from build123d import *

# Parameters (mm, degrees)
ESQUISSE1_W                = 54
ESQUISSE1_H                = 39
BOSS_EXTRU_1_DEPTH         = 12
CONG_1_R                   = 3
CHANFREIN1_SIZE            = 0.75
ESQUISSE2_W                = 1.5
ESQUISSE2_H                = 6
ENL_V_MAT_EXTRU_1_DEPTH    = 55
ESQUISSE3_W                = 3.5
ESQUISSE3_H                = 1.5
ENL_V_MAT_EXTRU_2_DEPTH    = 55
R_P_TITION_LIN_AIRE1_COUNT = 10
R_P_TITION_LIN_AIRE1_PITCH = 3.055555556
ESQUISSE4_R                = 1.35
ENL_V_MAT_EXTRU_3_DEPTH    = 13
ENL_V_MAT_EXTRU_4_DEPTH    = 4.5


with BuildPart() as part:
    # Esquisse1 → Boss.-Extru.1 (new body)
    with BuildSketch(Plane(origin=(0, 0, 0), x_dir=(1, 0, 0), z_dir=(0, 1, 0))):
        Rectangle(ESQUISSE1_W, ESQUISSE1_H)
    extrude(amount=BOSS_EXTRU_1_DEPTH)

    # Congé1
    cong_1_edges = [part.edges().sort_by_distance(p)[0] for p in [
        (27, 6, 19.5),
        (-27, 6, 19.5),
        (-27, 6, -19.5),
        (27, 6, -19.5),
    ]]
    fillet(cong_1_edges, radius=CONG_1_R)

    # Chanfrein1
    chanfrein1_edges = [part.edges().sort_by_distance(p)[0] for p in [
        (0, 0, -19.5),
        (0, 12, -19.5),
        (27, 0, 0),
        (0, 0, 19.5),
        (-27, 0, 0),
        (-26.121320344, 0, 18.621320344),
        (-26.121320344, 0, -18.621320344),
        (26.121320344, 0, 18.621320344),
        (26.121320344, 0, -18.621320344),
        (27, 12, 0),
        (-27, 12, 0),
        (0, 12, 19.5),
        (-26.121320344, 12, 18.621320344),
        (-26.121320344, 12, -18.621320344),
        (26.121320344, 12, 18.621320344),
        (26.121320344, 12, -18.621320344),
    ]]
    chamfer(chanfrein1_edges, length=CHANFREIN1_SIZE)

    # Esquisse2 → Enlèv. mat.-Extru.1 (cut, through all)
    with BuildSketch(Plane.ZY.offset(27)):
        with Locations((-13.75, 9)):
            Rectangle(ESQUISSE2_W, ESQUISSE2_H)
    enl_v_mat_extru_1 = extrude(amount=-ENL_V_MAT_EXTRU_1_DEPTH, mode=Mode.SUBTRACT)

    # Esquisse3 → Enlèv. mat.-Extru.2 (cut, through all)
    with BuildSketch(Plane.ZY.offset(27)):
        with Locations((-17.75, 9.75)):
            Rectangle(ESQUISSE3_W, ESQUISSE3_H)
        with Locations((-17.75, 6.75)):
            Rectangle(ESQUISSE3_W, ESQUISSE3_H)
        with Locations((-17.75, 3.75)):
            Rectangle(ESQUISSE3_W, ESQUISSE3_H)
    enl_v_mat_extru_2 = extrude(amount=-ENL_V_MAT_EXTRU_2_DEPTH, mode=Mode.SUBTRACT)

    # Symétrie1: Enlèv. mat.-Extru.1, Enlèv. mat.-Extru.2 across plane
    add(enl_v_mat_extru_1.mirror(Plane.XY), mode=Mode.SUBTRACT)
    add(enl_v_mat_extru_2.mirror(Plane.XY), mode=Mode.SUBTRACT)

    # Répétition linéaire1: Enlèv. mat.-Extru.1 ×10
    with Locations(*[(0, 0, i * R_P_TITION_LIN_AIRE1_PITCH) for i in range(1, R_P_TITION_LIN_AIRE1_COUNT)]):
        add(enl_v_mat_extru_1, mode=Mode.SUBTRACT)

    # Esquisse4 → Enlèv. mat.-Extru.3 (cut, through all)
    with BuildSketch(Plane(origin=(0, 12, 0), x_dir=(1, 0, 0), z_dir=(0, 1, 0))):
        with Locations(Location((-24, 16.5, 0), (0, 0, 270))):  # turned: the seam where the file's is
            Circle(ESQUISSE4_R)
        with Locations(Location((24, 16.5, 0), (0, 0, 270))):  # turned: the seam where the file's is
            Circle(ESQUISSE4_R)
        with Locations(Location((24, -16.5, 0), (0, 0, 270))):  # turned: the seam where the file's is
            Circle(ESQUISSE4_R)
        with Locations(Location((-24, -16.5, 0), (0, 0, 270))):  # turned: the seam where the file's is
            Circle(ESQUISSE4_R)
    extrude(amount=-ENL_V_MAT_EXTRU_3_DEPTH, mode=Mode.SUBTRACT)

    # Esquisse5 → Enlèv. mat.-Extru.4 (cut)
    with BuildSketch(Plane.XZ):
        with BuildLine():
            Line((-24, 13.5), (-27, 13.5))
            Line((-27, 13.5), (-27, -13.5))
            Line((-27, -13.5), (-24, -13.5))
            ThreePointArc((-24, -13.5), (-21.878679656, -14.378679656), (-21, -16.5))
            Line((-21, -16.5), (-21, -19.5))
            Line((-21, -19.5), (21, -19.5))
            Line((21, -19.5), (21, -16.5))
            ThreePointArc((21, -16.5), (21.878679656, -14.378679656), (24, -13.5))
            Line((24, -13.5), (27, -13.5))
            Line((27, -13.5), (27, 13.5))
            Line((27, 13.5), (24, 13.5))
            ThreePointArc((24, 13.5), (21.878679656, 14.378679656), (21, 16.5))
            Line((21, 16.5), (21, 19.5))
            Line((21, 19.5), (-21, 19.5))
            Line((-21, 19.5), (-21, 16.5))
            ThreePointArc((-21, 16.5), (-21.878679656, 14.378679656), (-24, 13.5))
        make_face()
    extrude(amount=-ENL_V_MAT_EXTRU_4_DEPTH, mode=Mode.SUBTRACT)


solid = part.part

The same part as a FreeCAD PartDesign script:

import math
import FreeCAD as App
import Part
import Sketcher
from FreeCAD import Vector
Q = App.Units.Quantity


def edges_at(feature, points):
    """Names of the edges that pass closest to the given points."""
    edges = feature.Shape.Edges
    near = lambda p: min(range(len(edges)), key=lambda i: edges[i].distToShape(Part.Vertex(*p))[0])
    return sorted({f"Edge{near(p) + 1}" for p in points})


def add_polygon(sketch, points):
    """Adds a closed chain of lines whose ends are joined by coincident constraints."""
    first, n = sketch.GeometryCount, len(points)
    for a, b in zip(points, points[1:] + points[:1]):
        sketch.addGeometry(Part.LineSegment(App.Vector(*a, 0), App.Vector(*b, 0)), False)
    for i in range(n):
        sketch.addConstraint(Sketcher.Constraint("Coincident", first + i, 2, first + (i + 1) % n, 1))

doc = App.newDocument("Part")
params = doc.addObject("Spreadsheet::Sheet", "Params")
for row, (alias, value) in enumerate([
    ("sketch1_width", "54 mm"),
    ("sketch1_height", "39 mm"),
    ("pad1_length", "12 mm"),
    ("fillet_radius", "3 mm"),
    ("chamfer_size", "0.75 mm"),
    ("sketch2_width", "6 mm"),
    ("sketch2_height", "1.5 mm"),
    ("sketch3_width", "1.5 mm"),
    ("sketch3_height", "3.5 mm"),
    ("linearpattern_pitch", "3.055556 mm"),
    ("sketch4_diameter", "2.7 mm"),
    ("sketch5_radius", "3 mm"),
    ("sketch5_width", "3 mm"),
    ("sketch5_width2", "42 mm"),
    ("sketch5_height", "27 mm"),
    ("pocket4_length", "4.5 mm"),
], start=1):
    params.set(f"A{row}", alias)
    params.set(f"B{row}", "=" + value)
    params.setAlias(f"B{row}", alias)

body = doc.addObject("PartDesign::Body", "Body")

sketch1 = body.newObject("Sketcher::SketchObject", "Sketch")
sketch1.AttachmentSupport = (doc.getObject("XZ_Plane"), [""])
sketch1.MapMode = "FlatFace"
add_polygon(sketch1, [(-27, -20), (-27, 20), (27, 20), (27, -20)])
sketch1.addConstraint(Sketcher.Constraint("Vertical", 0))
sketch1.addConstraint(Sketcher.Constraint("Horizontal", 1))
sketch1.addConstraint(Sketcher.Constraint("Vertical", 2))
sketch1.addConstraint(Sketcher.Constraint("Horizontal", 3))
sketch1.addConstraint(Sketcher.Constraint("Symmetric", 0, 2, 2, 2, -1, 1))
sketch1.addConstraint(Sketcher.Constraint("DistanceX", 1, 1, 1, 2, Q("54 mm")))
sketch1.addConstraint(Sketcher.Constraint("DistanceY", 0, 1, 0, 2, Q("39 mm")))
sketch1.setExpression("Constraints[9]", "Params.sketch1_width")
sketch1.setExpression("Constraints[10]", "Params.sketch1_height")
pad1 = body.newObject("PartDesign::Pad", "Pad")
pad1.Profile = sketch1
pad1.setExpression("Length", "Params.pad1_length")
pad1.Reversed = True
doc.recompute()

fillet = body.newObject("PartDesign::Fillet", "Fillet")
fillet.Base = (pad1, edges_at(pad1, [
    (27, 6, 19.5),
    (-27, 6, 19.5),
    (-27, 6, -19.5),
    (27, 6, -19.5),
]))
fillet.setExpression("Radius", "Params.fillet_radius")
doc.recompute()

chamfer = body.newObject("PartDesign::Chamfer", "Chamfer")
chamfer.Base = (fillet, edges_at(fillet, [
    (0, 0, -19.5),
    (0, 12, -19.5),
    (27, 0, 0),
    (0, 0, 19.5),
    (-27, 0, 0),
    (-26.121, 0, 18.621),
    (-26.121, 0, -18.621),
    (26.121, 0, 18.621),
    (26.121, 0, -18.621),
    (27, 12, 0),
    (-27, 12, 0),
    (0, 12, 19.5),
    (-26.121, 12, 18.621),
    (-26.121, 12, -18.621),
    (26.121, 12, 18.621),
    (26.121, 12, -18.621),
]))
chamfer.setExpression("Size", "Params.chamfer_size")

sketch2 = body.newObject("Sketcher::SketchObject", "Sketch001")
sketch2.AttachmentSupport = (doc.getObject("YZ_Plane"), [""])
sketch2.MapMode = "FlatFace"
sketch2.AttachmentOffset = App.Placement(Vector(0, 0, -27), App.Rotation())
add_polygon(sketch2, [(12, -14.5), (6, -14.5), (6, -13), (12, -13)])
sketch2.addConstraint(Sketcher.Constraint("Horizontal", 0))
sketch2.addConstraint(Sketcher.Constraint("Vertical", 1))
sketch2.addConstraint(Sketcher.Constraint("Horizontal", 2))
sketch2.addConstraint(Sketcher.Constraint("Vertical", 3))
sketch2.addConstraint(Sketcher.Constraint("DistanceX", 0, 2, 0, 1, Q("6 mm")))
sketch2.addConstraint(Sketcher.Constraint("DistanceY", 1, 1, 1, 2, Q("1.5 mm")))
sketch2.addConstraint(Sketcher.Constraint("DistanceX", -1, 1, 0, 2, Q("6 mm")))
sketch2.addConstraint(Sketcher.Constraint("DistanceY", 1, 2, -1, 1, Q("13 mm")))
sketch2.setExpression("Constraints[8]", "Params.sketch2_width")
sketch2.setExpression("Constraints[9]", "Params.sketch2_height")
pocket1 = body.newObject("PartDesign::Pocket", "Pocket")
pocket1.Profile = sketch2
pocket1.Type = "ThroughAll"
pocket1.Reversed = True

sketch3 = body.newObject("Sketcher::SketchObject", "Sketch002")
sketch3.AttachmentSupport = (doc.getObject("YZ_Plane"), [""])
sketch3.MapMode = "FlatFace"
sketch3.AttachmentOffset = App.Placement(Vector(0, 0, -27), App.Rotation())
add_polygon(sketch3, [(10.5, -19.5), (9, -19.5), (9, -16), (10.5, -16)])
add_polygon(sketch3, [(7.5, -19.5), (6, -19.5), (6, -16), (7.5, -16)])
add_polygon(sketch3, [(4.5, -19.5), (3, -19.5), (3, -16), (4.5, -16)])
sketch3.addConstraint(Sketcher.Constraint("Horizontal", 0))
sketch3.addConstraint(Sketcher.Constraint("Vertical", 1))
sketch3.addConstraint(Sketcher.Constraint("Horizontal", 2))
sketch3.addConstraint(Sketcher.Constraint("Vertical", 3))
sketch3.addConstraint(Sketcher.Constraint("Horizontal", 4))
sketch3.addConstraint(Sketcher.Constraint("Vertical", 5))
sketch3.addConstraint(Sketcher.Constraint("Horizontal", 6))
sketch3.addConstraint(Sketcher.Constraint("Vertical", 7))
sketch3.addConstraint(Sketcher.Constraint("Horizontal", 8))
sketch3.addConstraint(Sketcher.Constraint("Vertical", 9))
sketch3.addConstraint(Sketcher.Constraint("Horizontal", 10))
sketch3.addConstraint(Sketcher.Constraint("Vertical", 11))
sketch3.addConstraint(Sketcher.Constraint("Horizontal", 3, 2, 4, 2))
sketch3.addConstraint(Sketcher.Constraint("Horizontal", 2, 2, 5, 2))
sketch3.addConstraint(Sketcher.Constraint("Horizontal", 7, 2, 8, 2))
sketch3.addConstraint(Sketcher.Constraint("Horizontal", 6, 2, 9, 2))
sketch3.addConstraint(Sketcher.Constraint("Equal", 2, 4))
sketch3.addConstraint(Sketcher.Constraint("Equal", 6, 8))
sketch3.addConstraint(Sketcher.Constraint("DistanceX", 0, 2, 0, 1, Q("1.5 mm")))
sketch3.addConstraint(Sketcher.Constraint("DistanceY", 1, 1, 1, 2, Q("3.5 mm")))
sketch3.addConstraint(Sketcher.Constraint("DistanceX", -1, 1, 0, 2, Q("9 mm")))
sketch3.addConstraint(Sketcher.Constraint("DistanceY", 1, 2, -1, 1, Q("16 mm")))
sketch3.addConstraint(Sketcher.Constraint("DistanceX", -1, 1, 4, 2, Q("6 mm")))
sketch3.addConstraint(Sketcher.Constraint("DistanceX", -1, 1, 8, 2, Q("3 mm")))
sketch3.setExpression("Constraints[30]", "Params.sketch3_width")
sketch3.setExpression("Constraints[31]", "Params.sketch3_height")
pocket2 = body.newObject("PartDesign::Pocket", "Pocket001")
pocket2.Profile = sketch3
pocket2.Type = "ThroughAll"
pocket2.Reversed = True
doc.recompute()

mirrored = body.newObject("PartDesign::Mirrored", "Mirrored")
mirrored.Originals = [pocket1, pocket2]
mirrored.MirrorPlane = (doc.getObject("XY_Plane"), [""])
body.Tip = mirrored
doc.recompute()

linearpattern = body.newObject("PartDesign::LinearPattern", "LinearPattern")
linearpattern.Originals = [pocket1]
linearpattern.Direction = (doc.getObject("Z_Axis"), [""])
linearpattern.Mode = "offset"
linearpattern.setExpression("Offset", "Params.linearpattern_pitch")
linearpattern.Occurrences = 10
body.Tip = linearpattern

sketch4 = body.newObject("Sketcher::SketchObject", "Sketch003")
sketch4.AttachmentSupport = (doc.getObject("XZ_Plane"), [""])
sketch4.MapMode = "FlatFace"
sketch4.AttachmentOffset = App.Placement(Vector(0, 0, -12), App.Rotation())
sketch4.addGeometry(Part.Circle(Vector(-24, -16.5, 0), Vector(0, 0, 1), 1.4), False)
sketch4.addGeometry(Part.Circle(Vector(24, -16.5, 0), Vector(0, 0, 1), 1.4), False)
sketch4.addGeometry(Part.Circle(Vector(24, 16.5, 0), Vector(0, 0, 1), 1.4), False)
sketch4.addGeometry(Part.Circle(Vector(-24, 16.5, 0), Vector(0, 0, 1), 1.4), False)
sketch4.addConstraint(Sketcher.Constraint("Equal", 0, 1))
sketch4.addConstraint(Sketcher.Constraint("Equal", 1, 2))
sketch4.addConstraint(Sketcher.Constraint("Equal", 2, 3))
sketch4.addConstraint(Sketcher.Constraint("Symmetric", 0, 3, 2, 3, -1, 1))
sketch4.addConstraint(Sketcher.Constraint("Symmetric", 1, 3, 3, 3, -1, 1))
sketch4.addConstraint(Sketcher.Constraint("Symmetric", 0, 3, 1, 3, -2))
sketch4.addConstraint(Sketcher.Constraint("Diameter", 0, Q("2.7 mm")))
sketch4.addConstraint(Sketcher.Constraint("DistanceX", 0, 3, -1, 1, Q("24 mm")))
sketch4.addConstraint(Sketcher.Constraint("DistanceY", 1, 3, 2, 3, Q("33 mm")))
sketch4.setExpression("Constraints[6]", "Params.sketch4_diameter")
pocket3 = body.newObject("PartDesign::Pocket", "Pocket002")
pocket3.Profile = sketch4
pocket3.Type = "ThroughAll"
pocket3.Reversed = True

sketch5 = body.newObject("Sketcher::SketchObject", "Sketch004")
sketch5.AttachmentSupport = (doc.getObject("XZ_Plane"), [""])
sketch5.MapMode = "FlatFace"
sketch5.addGeometry(Part.LineSegment(Vector(-24, 13.5, 0), Vector(-27, 13.5, 0)), False)
sketch5.addGeometry(Part.LineSegment(Vector(-27, 13.5, 0), Vector(-27, -13.5, 0)), False)
sketch5.addGeometry(Part.LineSegment(Vector(-27, -13.5, 0), Vector(-24, -13.5, 0)), False)
sketch5.addGeometry(Part.ArcOfCircle(Part.Circle(Vector(-24, -16.5, 0), Vector(0, 0, 1), 3), math.radians(0), math.radians(90)), False)
sketch5.addGeometry(Part.LineSegment(Vector(-21, -16.5, 0), Vector(-21, -19.5, 0)), False)
sketch5.addGeometry(Part.LineSegment(Vector(-21, -19.5, 0), Vector(21, -19.5, 0)), False)
sketch5.addGeometry(Part.LineSegment(Vector(21, -19.5, 0), Vector(21, -16.5, 0)), False)
sketch5.addGeometry(Part.ArcOfCircle(Part.Circle(Vector(24, -16.5, 0), Vector(0, 0, 1), 3), math.radians(90), math.radians(180)), False)
sketch5.addGeometry(Part.LineSegment(Vector(24, -13.5, 0), Vector(27, -13.5, 0)), False)
sketch5.addGeometry(Part.LineSegment(Vector(27, -13.5, 0), Vector(27, 13.5, 0)), False)
sketch5.addGeometry(Part.LineSegment(Vector(27, 13.5, 0), Vector(24, 13.5, 0)), False)
sketch5.addGeometry(Part.ArcOfCircle(Part.Circle(Vector(24, 16.5, 0), Vector(0, 0, 1), 3), math.radians(180), math.radians(270)), False)
sketch5.addGeometry(Part.LineSegment(Vector(21, 16.5, 0), Vector(21, 19.5, 0)), False)
sketch5.addGeometry(Part.LineSegment(Vector(21, 19.5, 0), Vector(-21, 19.5, 0)), False)
sketch5.addGeometry(Part.LineSegment(Vector(-21, 19.5, 0), Vector(-21, 16.5, 0)), False)
sketch5.addGeometry(Part.ArcOfCircle(Part.Circle(Vector(-24, 16.5, 0), Vector(0, 0, 1), 3), math.radians(-90), math.radians(0)), False)
sketch5.addConstraint(Sketcher.Constraint("Coincident", 0, 2, 1, 1))
sketch5.addConstraint(Sketcher.Constraint("Coincident", 1, 2, 2, 1))
sketch5.addConstraint(Sketcher.Constraint("Tangent", 2, 2, 3, 2))
sketch5.addConstraint(Sketcher.Constraint("Tangent", 3, 1, 4, 1))
sketch5.addConstraint(Sketcher.Constraint("Coincident", 4, 2, 5, 1))
sketch5.addConstraint(Sketcher.Constraint("Coincident", 5, 2, 6, 1))
sketch5.addConstraint(Sketcher.Constraint("Tangent", 6, 2, 7, 2))
sketch5.addConstraint(Sketcher.Constraint("Tangent", 7, 1, 8, 1))
sketch5.addConstraint(Sketcher.Constraint("Coincident", 8, 2, 9, 1))
sketch5.addConstraint(Sketcher.Constraint("Coincident", 9, 2, 10, 1))
sketch5.addConstraint(Sketcher.Constraint("Tangent", 10, 2, 11, 2))
sketch5.addConstraint(Sketcher.Constraint("Tangent", 11, 1, 12, 1))
sketch5.addConstraint(Sketcher.Constraint("Coincident", 12, 2, 13, 1))
sketch5.addConstraint(Sketcher.Constraint("Coincident", 13, 2, 14, 1))
sketch5.addConstraint(Sketcher.Constraint("Tangent", 14, 2, 15, 2))
sketch5.addConstraint(Sketcher.Constraint("Tangent", 15, 1, 0, 1))
sketch5.addConstraint(Sketcher.Constraint("Horizontal", 0))
sketch5.addConstraint(Sketcher.Constraint("Vertical", 1))
sketch5.addConstraint(Sketcher.Constraint("Horizontal", 2))
sketch5.addConstraint(Sketcher.Constraint("Vertical", 4))
sketch5.addConstraint(Sketcher.Constraint("Horizontal", 5))
sketch5.addConstraint(Sketcher.Constraint("Vertical", 6))
sketch5.addConstraint(Sketcher.Constraint("Horizontal", 8))
sketch5.addConstraint(Sketcher.Constraint("Vertical", 9))
sketch5.addConstraint(Sketcher.Constraint("Horizontal", 10))
sketch5.addConstraint(Sketcher.Constraint("Vertical", 12))
sketch5.addConstraint(Sketcher.Constraint("Horizontal", 13))
sketch5.addConstraint(Sketcher.Constraint("Vertical", 14))
sketch5.addConstraint(Sketcher.Constraint("Equal", 3, 7))
sketch5.addConstraint(Sketcher.Constraint("Equal", 7, 11))
sketch5.addConstraint(Sketcher.Constraint("Equal", 11, 15))
sketch5.addConstraint(Sketcher.Constraint("Symmetric", 3, 3, 11, 3, -1, 1))
sketch5.addConstraint(Sketcher.Constraint("Symmetric", 7, 3, 15, 3, -1, 1))
sketch5.addConstraint(Sketcher.Constraint("Symmetric", 3, 3, 7, 3, -2))
sketch5.addConstraint(Sketcher.Constraint("Equal", 2, 8))
sketch5.addConstraint(Sketcher.Constraint("Equal", 10, 4))
sketch5.addConstraint(Sketcher.Constraint("Equal", 6, 12))
sketch5.addConstraint(Sketcher.Constraint("Radius", 3, Q("3 mm")))
sketch5.addConstraint(Sketcher.Constraint("DistanceX", 0, 2, 0, 1, Q("3 mm")))
sketch5.addConstraint(Sketcher.Constraint("DistanceX", 5, 1, 5, 2, Q("42 mm")))
sketch5.addConstraint(Sketcher.Constraint("DistanceY", 1, 2, 1, 1, Q("27 mm")))
sketch5.setExpression("Constraints[37]", "Params.sketch5_radius")
sketch5.setExpression("Constraints[38]", "Params.sketch5_width")
sketch5.setExpression("Constraints[39]", "Params.sketch5_width2")
sketch5.setExpression("Constraints[40]", "Params.sketch5_height")
pocket4 = body.newObject("PartDesign::Pocket", "Pocket003")
pocket4.Profile = sketch5
pocket4.setExpression("Length", "Params.pocket4_length")

doc.recompute()
